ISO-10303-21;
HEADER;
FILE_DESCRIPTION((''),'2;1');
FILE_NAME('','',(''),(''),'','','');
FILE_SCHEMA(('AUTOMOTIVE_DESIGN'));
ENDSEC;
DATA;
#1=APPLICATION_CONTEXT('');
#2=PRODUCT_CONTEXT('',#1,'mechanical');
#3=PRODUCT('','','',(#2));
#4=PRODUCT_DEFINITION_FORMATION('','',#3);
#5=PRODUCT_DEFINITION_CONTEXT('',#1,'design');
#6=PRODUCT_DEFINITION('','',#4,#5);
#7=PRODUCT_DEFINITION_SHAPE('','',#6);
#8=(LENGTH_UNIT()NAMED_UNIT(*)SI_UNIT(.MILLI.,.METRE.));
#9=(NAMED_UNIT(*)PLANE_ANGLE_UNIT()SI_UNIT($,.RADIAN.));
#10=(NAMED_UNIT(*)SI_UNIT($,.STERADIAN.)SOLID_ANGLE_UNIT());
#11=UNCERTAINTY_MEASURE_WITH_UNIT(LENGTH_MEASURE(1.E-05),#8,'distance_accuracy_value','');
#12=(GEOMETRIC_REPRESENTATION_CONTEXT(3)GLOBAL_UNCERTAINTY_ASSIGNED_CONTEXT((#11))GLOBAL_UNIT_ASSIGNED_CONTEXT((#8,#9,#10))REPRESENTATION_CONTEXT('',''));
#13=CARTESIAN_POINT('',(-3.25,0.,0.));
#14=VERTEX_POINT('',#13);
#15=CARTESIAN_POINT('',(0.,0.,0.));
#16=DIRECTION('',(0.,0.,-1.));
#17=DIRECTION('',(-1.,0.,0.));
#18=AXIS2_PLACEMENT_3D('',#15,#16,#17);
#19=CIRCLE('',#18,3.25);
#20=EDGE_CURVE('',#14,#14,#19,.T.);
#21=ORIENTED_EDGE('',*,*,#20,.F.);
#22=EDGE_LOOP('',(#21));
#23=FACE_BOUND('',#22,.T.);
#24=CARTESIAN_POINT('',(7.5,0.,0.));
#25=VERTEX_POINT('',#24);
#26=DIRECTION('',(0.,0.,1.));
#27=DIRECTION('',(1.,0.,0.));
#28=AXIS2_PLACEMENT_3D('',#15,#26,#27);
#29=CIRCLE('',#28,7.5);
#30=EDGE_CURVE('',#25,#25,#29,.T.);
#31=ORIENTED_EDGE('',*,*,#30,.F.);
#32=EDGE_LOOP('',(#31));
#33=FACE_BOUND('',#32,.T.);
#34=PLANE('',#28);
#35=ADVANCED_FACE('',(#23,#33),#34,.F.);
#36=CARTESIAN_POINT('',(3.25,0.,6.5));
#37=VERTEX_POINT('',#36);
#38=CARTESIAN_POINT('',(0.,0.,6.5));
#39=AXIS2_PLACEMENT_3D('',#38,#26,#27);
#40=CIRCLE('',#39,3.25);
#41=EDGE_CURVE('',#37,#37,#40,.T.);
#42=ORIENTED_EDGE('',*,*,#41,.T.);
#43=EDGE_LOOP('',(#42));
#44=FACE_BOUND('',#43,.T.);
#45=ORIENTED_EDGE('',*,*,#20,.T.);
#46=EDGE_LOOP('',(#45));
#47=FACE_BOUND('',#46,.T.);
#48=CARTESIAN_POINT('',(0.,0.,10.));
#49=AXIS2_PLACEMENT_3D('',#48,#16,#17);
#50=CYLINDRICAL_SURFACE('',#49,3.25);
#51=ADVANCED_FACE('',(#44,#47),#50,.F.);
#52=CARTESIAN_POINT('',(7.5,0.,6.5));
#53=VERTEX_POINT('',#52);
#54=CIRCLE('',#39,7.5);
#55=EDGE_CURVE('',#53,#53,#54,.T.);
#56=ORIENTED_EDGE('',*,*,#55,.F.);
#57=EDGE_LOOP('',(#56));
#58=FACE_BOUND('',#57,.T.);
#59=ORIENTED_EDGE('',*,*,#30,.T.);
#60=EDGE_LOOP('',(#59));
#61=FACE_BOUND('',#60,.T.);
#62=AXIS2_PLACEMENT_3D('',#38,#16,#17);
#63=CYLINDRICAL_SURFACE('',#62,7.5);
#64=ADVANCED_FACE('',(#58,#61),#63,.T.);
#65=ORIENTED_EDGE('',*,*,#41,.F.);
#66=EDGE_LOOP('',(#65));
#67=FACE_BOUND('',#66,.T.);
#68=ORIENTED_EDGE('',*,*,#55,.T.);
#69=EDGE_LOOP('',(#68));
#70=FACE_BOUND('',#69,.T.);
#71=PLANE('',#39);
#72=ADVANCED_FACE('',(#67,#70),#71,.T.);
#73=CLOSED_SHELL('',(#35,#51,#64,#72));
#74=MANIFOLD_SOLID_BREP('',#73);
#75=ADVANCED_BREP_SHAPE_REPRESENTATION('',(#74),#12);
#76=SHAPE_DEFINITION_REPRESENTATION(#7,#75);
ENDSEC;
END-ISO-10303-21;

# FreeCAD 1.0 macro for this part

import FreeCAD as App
import Part
import Sketcher

doc = App.newDocument("Part")
body = doc.addObject("PartDesign::Body", "Body")

# Sketch on XY plane
sketch1 = doc.addObject("Sketcher::SketchObject", "Sketch")
body.addObject(sketch1)
sketch1.AttachmentSupport = (doc.XY_Plane, [""])
sketch1.MapMode = "FlatFace"
sketch1.addGeometry(Part.Circle(App.Vector(0, 0, 0), App.Vector(0, 0, 1), 8), False)
sketch1.addConstraint([
    Sketcher.Constraint("Coincident", 0, 3, -1, 1),
    Sketcher.Constraint("Diameter", 0, 15.0),
])
pad1 = doc.addObject("PartDesign::Pad", "Pad")
body.addObject(pad1)
pad1.Profile = sketch1
pad1.Length = 6.5

# Sketch on XY plane
sketch2 = doc.addObject("Sketcher::SketchObject", "Sketch001")
body.addObject(sketch2)
sketch2.AttachmentSupport = (doc.XY_Plane, [""])
sketch2.MapMode = "FlatFace"
sketch2.addGeometry(Part.Circle(App.Vector(0, 0, 0), App.Vector(0, 0, 1), 3.2), False)
sketch2.addConstraint([
    Sketcher.Constraint("Coincident", 0, 3, -1, 1),
    Sketcher.Constraint("Diameter", 0, 6.5),
])
pocket1 = doc.addObject("PartDesign::Pocket", "Pocket")
body.addObject(pocket1)
pocket1.Profile = sketch2
pocket1.Length = 10
pocket1.Reversed = True

doc.recompute()
